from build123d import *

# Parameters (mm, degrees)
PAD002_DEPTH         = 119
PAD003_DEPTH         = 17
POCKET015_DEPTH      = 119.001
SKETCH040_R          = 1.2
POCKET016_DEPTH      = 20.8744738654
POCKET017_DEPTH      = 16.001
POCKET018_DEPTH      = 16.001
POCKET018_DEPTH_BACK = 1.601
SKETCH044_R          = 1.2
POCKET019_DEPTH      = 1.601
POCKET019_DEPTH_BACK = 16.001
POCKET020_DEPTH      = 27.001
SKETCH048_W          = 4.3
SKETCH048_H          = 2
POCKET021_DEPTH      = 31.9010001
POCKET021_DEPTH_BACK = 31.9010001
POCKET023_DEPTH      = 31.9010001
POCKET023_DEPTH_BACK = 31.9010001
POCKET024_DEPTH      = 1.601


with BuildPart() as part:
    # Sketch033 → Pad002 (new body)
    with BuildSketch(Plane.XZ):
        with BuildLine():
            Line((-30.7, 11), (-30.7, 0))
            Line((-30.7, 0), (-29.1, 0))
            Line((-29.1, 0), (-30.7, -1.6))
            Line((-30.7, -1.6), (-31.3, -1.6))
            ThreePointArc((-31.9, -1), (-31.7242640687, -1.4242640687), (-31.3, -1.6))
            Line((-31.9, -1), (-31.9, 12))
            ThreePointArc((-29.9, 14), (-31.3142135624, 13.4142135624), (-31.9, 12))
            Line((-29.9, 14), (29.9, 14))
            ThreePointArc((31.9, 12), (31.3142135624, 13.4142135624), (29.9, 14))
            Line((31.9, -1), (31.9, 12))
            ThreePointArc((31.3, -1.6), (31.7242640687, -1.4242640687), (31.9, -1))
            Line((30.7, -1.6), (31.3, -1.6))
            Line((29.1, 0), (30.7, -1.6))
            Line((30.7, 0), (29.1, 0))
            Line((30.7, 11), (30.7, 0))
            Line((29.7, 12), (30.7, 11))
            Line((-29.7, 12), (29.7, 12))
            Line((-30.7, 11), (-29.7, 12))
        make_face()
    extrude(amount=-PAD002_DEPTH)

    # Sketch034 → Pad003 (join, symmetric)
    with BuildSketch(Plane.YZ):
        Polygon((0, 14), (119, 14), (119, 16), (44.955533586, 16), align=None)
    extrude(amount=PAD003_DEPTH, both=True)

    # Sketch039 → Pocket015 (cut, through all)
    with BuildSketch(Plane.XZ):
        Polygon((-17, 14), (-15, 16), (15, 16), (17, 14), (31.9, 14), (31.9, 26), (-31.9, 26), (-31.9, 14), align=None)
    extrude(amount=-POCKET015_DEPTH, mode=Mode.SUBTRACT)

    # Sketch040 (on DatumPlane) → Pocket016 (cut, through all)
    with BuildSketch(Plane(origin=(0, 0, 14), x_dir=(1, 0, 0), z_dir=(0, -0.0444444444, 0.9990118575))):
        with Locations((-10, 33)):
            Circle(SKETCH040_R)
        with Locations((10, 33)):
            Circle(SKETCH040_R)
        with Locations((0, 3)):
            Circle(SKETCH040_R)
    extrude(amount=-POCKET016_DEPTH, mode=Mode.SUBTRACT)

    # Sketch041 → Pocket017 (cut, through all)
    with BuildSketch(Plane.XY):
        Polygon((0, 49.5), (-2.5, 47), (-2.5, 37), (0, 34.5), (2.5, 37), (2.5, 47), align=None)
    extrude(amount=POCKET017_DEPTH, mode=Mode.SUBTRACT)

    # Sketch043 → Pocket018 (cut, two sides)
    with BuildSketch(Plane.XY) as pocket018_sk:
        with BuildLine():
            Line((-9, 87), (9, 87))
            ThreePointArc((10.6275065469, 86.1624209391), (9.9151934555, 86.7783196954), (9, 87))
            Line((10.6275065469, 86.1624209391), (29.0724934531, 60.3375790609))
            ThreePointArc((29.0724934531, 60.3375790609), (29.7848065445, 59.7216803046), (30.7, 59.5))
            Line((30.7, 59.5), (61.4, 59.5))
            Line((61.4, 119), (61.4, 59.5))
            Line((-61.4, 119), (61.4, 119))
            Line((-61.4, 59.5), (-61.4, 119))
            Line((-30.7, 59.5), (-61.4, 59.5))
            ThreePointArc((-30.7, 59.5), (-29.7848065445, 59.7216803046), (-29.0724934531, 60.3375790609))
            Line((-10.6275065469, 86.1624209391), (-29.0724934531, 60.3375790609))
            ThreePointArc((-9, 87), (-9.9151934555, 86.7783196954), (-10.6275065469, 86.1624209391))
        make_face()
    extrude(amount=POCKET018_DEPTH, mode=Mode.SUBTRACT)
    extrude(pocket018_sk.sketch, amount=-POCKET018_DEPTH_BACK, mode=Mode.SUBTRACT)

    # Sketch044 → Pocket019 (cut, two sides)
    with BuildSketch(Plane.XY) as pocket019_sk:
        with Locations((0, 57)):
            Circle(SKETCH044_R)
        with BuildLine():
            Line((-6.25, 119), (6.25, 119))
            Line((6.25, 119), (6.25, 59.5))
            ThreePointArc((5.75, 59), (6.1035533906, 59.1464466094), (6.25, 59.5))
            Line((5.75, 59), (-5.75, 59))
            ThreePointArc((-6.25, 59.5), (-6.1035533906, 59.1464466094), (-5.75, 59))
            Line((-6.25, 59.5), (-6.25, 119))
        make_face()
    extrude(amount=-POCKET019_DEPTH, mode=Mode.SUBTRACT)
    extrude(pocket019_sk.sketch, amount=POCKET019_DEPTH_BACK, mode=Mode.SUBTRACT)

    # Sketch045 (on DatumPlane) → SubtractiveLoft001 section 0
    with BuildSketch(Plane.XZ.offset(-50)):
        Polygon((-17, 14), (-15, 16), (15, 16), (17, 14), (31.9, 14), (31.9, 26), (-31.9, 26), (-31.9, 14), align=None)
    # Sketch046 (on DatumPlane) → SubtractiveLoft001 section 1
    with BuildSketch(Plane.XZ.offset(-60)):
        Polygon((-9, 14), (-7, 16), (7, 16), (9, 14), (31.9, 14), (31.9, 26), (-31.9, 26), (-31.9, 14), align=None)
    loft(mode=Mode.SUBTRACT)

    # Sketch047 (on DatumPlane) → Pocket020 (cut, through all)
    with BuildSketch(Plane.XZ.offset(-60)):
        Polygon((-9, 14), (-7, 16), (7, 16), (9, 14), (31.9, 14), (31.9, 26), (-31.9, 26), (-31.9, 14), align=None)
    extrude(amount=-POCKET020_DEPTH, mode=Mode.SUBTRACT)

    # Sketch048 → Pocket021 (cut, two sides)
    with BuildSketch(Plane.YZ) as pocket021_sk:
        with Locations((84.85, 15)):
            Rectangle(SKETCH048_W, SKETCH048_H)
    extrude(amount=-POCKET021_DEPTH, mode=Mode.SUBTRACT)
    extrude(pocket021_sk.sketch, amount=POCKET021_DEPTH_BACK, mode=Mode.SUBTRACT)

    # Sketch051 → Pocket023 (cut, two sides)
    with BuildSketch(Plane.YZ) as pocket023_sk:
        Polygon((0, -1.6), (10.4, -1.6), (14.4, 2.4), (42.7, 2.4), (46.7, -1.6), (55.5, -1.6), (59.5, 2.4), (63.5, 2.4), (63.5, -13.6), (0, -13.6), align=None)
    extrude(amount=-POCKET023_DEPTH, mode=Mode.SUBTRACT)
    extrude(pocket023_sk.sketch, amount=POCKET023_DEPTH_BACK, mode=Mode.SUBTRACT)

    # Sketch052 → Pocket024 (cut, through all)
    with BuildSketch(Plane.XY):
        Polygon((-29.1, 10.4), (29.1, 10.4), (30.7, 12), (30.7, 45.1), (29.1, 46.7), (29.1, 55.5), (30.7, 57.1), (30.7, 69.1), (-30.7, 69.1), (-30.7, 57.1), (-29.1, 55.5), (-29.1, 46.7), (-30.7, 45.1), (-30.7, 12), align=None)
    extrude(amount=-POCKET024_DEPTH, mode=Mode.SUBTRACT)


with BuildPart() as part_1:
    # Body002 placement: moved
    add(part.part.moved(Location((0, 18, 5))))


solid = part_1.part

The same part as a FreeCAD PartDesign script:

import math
import FreeCAD as App
import Part
import Sketcher
Q = App.Units.Quantity

doc = App.newDocument("Part")
body = doc.addObject("PartDesign::Body", "Body")

# Sketch on XZ plane
sketch1 = body.newObject("Sketcher::SketchObject", "Sketch")
sketch1.AttachmentSupport = (doc.getObject("XZ_Plane"), [""])
sketch1.MapMode = "FlatFace"
sketch1.addGeometry([
    Part.LineSegment(App.Vector(-30.7, 0, 0), App.Vector(-30.7, 11, 0)),  # 0
    Part.LineSegment(App.Vector(-30.7, 11, 0), App.Vector(-29.7, 12, 0)),  # 1
    Part.LineSegment(App.Vector(-29.7, 12, 0), App.Vector(29.7, 12, 0)),  # 2
    Part.LineSegment(App.Vector(29.7, 12, 0), App.Vector(30.7, 11, 0)),  # 3
    Part.LineSegment(App.Vector(30.7, 11, 0), App.Vector(30.7, 0, 0)),  # 4
    Part.LineSegment(App.Vector(30.7, 0, 0), App.Vector(29.1, 0, 0)),  # 5
    Part.LineSegment(App.Vector(29.1, 0, 0), App.Vector(30.7, -1.6, 0)),  # 6
    Part.LineSegment(App.Vector(30.7, -1.6, 0), App.Vector(31.3, -1.6, 0)),  # 7
    Part.ArcOfCircle(Part.Circle(App.Vector(31.3, -1, 0), App.Vector(0, 0, 1), 0.6), math.radians(-90), math.radians(0)),  # 8
    Part.LineSegment(App.Vector(31.9, -1, 0), App.Vector(31.9, 12, 0)),  # 9
    Part.ArcOfCircle(Part.Circle(App.Vector(29.9, 12, 0), App.Vector(0, 0, 1), 2), math.radians(0), math.radians(90)),  # 10
    Part.LineSegment(App.Vector(29.9, 14, 0), App.Vector(-29.9, 14, 0)),  # 11
    Part.ArcOfCircle(Part.Circle(App.Vector(-29.9, 12, 0), App.Vector(0, 0, 1), 2), math.radians(90), math.radians(180)),  # 12
    Part.LineSegment(App.Vector(-31.9, 12, 0), App.Vector(-31.9, -1, 0)),  # 13
    Part.ArcOfCircle(Part.Circle(App.Vector(-31.3, -1, 0), App.Vector(0, 0, 1), 0.6), math.radians(180), math.radians(270)),  # 14
    Part.LineSegment(App.Vector(-31.3, -1.6, 0), App.Vector(-30.7, -1.6, 0)),  # 15
    Part.LineSegment(App.Vector(-30.7, -1.6, 0), App.Vector(-29.1, 0, 0)),  # 16
    Part.LineSegment(App.Vector(-29.1, 0, 0), App.Vector(-30.7, 0, 0)),  # 17
], False)
sketch1.addConstraint([
    Sketcher.Constraint("Coincident", 0, 2, 1, 1),
    Sketcher.Constraint("Coincident", 1, 2, 2, 1),
    Sketcher.Constraint("Coincident", 2, 2, 3, 1),
    Sketcher.Constraint("Coincident", 3, 2, 4, 1),
    Sketcher.Constraint("Coincident", 4, 2, 5, 1),
    Sketcher.Constraint("Coincident", 5, 2, 6, 1),
    Sketcher.Constraint("Coincident", 6, 2, 7, 1),
    Sketcher.Constraint("Tangent", 7, 2, 8, 1),
    Sketcher.Constraint("Tangent", 8, 2, 9, 1),
    Sketcher.Constraint("Tangent", 9, 2, 10, 1),
    Sketcher.Constraint("Tangent", 10, 2, 11, 1),
    Sketcher.Constraint("Tangent", 11, 2, 12, 1),
    Sketcher.Constraint("Tangent", 12, 2, 13, 1),
    Sketcher.Constraint("Tangent", 13, 2, 14, 1),
    Sketcher.Constraint("Tangent", 14, 2, 15, 1),
    Sketcher.Constraint("Coincident", 15, 2, 16, 1),
    Sketcher.Constraint("Coincident", 16, 2, 17, 1),
    Sketcher.Constraint("Coincident", 17, 2, 0, 1),
    Sketcher.Constraint("Vertical", 0),
    Sketcher.Constraint("Horizontal", 2),
    Sketcher.Constraint("Vertical", 4),
    Sketcher.Constraint("Horizontal", 5),
    Sketcher.Constraint("Horizontal", 7),
    Sketcher.Constraint("Vertical", 9),
    Sketcher.Constraint("Horizontal", 11),
    Sketcher.Constraint("Vertical", 13),
    Sketcher.Constraint("Horizontal", 15),
    Sketcher.Constraint("Horizontal", 17),
    Sketcher.Constraint("Equal", 10, 12),
    Sketcher.Constraint("Equal", 8, 14),
    Sketcher.Constraint("Symmetric", 5, 2, 16, 2, -1, 1),
    Sketcher.Constraint("Symmetric", 8, 3, 14, 3, -2),
    Sketcher.Constraint("Symmetric", 0, 2, 3, 2, -2),
    Sketcher.Constraint("PointOnObject", 4, 2, -1),
    Sketcher.Constraint("Perpendicular", 1, 3),
    Sketcher.Constraint("Parallel", 3, 6),
    Sketcher.Constraint("Perpendicular", 6, 16),
    Sketcher.Constraint("Horizontal", 12, 3, 1, 2),
    Sketcher.Constraint("Vertical", 4, 2, 6, 2),
    Sketcher.Constraint("Vertical", 0, 2, 15, 2),
    Sketcher.Constraint("Radius", 10, Q("2 mm")),
    Sketcher.Constraint("Radius", 8, Q("0.6 mm")),
    Sketcher.Constraint("DistanceY", 0, 1, 0, 2, Q("11 mm")),
    Sketcher.Constraint("DistanceY", 9, 1, 9, 2, Q("13 mm")),
    Sketcher.Constraint("DistanceX", 2, 1, 2, 2, Q("59.4 mm")),
    Sketcher.Constraint("DistanceX", 5, 2, 5, 1, Q("1.6 mm")),
    Sketcher.Constraint("DistanceX", 7, 1, 7, 2, Q("0.6 mm")),
])
pad1 = body.newObject("PartDesign::Pad", "Pad")
pad1.Profile = sketch1
pad1.Length = 119
pad1.Reversed = True

# Sketch on YZ plane
sketch2 = body.newObject("Sketcher::SketchObject", "Sketch001")
sketch2.AttachmentSupport = (doc.getObject("YZ_Plane"), [""])
sketch2.MapMode = "FlatFace"
sketch2.addGeometry([
    Part.LineSegment(App.Vector(0, 14, 0), App.Vector(119, 14, 0)),
    Part.LineSegment(App.Vector(119, 14, 0), App.Vector(119, 16, 0)),
    Part.LineSegment(App.Vector(119, 16, 0), App.Vector(45, 16, 0)),
    Part.LineSegment(App.Vector(45, 16, 0), App.Vector(0, 14, 0)),
], False)
sketch2.addConstraint([
    Sketcher.Constraint("Coincident", 0, 2, 1, 1),
    Sketcher.Constraint("Coincident", 1, 2, 2, 1),
    Sketcher.Constraint("Coincident", 2, 2, 3, 1),
    Sketcher.Constraint("Coincident", 3, 2, 0, 1),
    Sketcher.Constraint("Horizontal", 0),
    Sketcher.Constraint("Vertical", 1),
    Sketcher.Constraint("Horizontal", 2),
    Sketcher.Constraint("PointOnObject", 3, 2, -2),
    Sketcher.Constraint("DistanceX", 0, 1, 0, 2, Q("119 mm")),
    Sketcher.Constraint("DistanceY", 1, 1, 1, 2, Q("2 mm")),
    Sketcher.Constraint("Distance", 3, Q("45 mm")),
    Sketcher.Constraint("DistanceY", -1, 1, 0, 2, Q("14 mm")),
])
pad2 = body.newObject("PartDesign::Pad", "Pad001")
pad2.Profile = sketch2
pad2.Length = 34
pad2.Midplane = True

# Sketch on XZ plane
sketch3 = body.newObject("Sketcher::SketchObject", "Sketch002")
sketch3.AttachmentSupport = (doc.getObject("XZ_Plane"), [""])
sketch3.MapMode = "FlatFace"
sketch3.addGeometry([
    Part.LineSegment(App.Vector(-17, 14, 0), App.Vector(-15, 16, 0)),  # 0
    Part.LineSegment(App.Vector(-15, 16, 0), App.Vector(15, 16, 0)),  # 1
    Part.LineSegment(App.Vector(15, 16, 0), App.Vector(17, 14, 0)),  # 2
    Part.LineSegment(App.Vector(17, 14, 0), App.Vector(31.9, 14, 0)),  # 3
    Part.LineSegment(App.Vector(31.9, 14, 0), App.Vector(31.9, 26, 0)),  # 4
    Part.LineSegment(App.Vector(31.9, 26, 0), App.Vector(-31.9, 26, 0)),  # 5
    Part.LineSegment(App.Vector(-31.9, 26, 0), App.Vector(-31.9, 14, 0)),  # 6
    Part.LineSegment(App.Vector(-31.9, 14, 0), App.Vector(-17, 14, 0)),  # 7
], False)
sketch3.addConstraint([
    Sketcher.Constraint("Coincident", 0, 2, 1, 1),
    Sketcher.Constraint("Coincident", 1, 2, 2, 1),
    Sketcher.Constraint("Coincident", 2, 2, 3, 1),
    Sketcher.Constraint("Coincident", 3, 2, 4, 1),
    Sketcher.Constraint("Coincident", 4, 2, 5, 1),
    Sketcher.Constraint("Coincident", 5, 2, 6, 1),
    Sketcher.Constraint("Coincident", 6, 2, 7, 1),
    Sketcher.Constraint("Coincident", 7, 2, 0, 1),
    Sketcher.Constraint("Horizontal", 1),
    Sketcher.Constraint("Horizontal", 3),
    Sketcher.Constraint("Vertical", 4),
    Sketcher.Constraint("Horizontal", 5),
    Sketcher.Constraint("Vertical", 6),
    Sketcher.Constraint("Horizontal", 7),
    Sketcher.Constraint("Symmetric", 3, 2, 6, 2, -2),
    Sketcher.Constraint("Perpendicular", 0, 2),
    Sketcher.Constraint("Equal", 3, 7),
    Sketcher.Constraint("Equal", 0, 2),
    Sketcher.Constraint("DistanceX", 1, 1, 1, 2, Q("30 mm")),
    Sketcher.Constraint("DistanceY", 4, 1, 4, 2, Q("12 mm")),
    Sketcher.Constraint("DistanceX", 3, 1, 3, 2, Q("14.9 mm")),
    Sketcher.Constraint("DistanceX", 5, 2, 5, 1, Q("63.8 mm")),
    Sketcher.Constraint("DistanceY", -1, 1, 0, 2, Q("16 mm")),
])
pocket1 = body.newObject("PartDesign::Pocket", "Pocket")
pocket1.Profile = sketch3
pocket1.Type = "ThroughAll"

# Sketch on an angled plane
sketch4 = body.newObject("Sketcher::SketchObject", "Sketch003")
sketch4.Placement = App.Placement(App.Vector(0, 0, 14), App.Rotation(App.Vector(1, 0, 0), App.Vector(0, 0.999011857, 0.044444444), App.Vector(0, -0.044444444, 0.999011857), "ZXY"))
sketch4.addGeometry([
    Part.Circle(App.Vector(-10, 33, 0), App.Vector(0, 0, 1), 1.2),
    Part.Circle(App.Vector(10, 33, 0), App.Vector(0, 0, 1), 1.2),
    Part.Circle(App.Vector(0, 3, 0), App.Vector(0, 0, 1), 1.2),
], False)
sketch4.addConstraint([
    Sketcher.Constraint("Equal", 0, 1),
    Sketcher.Constraint("Equal", 1, 2),
    Sketcher.Constraint("Symmetric", 0, 3, 1, 3, -2),
    Sketcher.Constraint("PointOnObject", 2, 3, -2),
    Sketcher.Constraint("Diameter", 0, Q("2.4 mm")),
    Sketcher.Constraint("DistanceX", 0, 3, -1, 1, Q("10 mm")),
    Sketcher.Constraint("DistanceY", -1, 1, 0, 3, Q("33 mm")),
    Sketcher.Constraint("DistanceY", -1, 1, 2, 3, Q("3 mm")),
])
pocket2 = body.newObject("PartDesign::Pocket", "Pocket001")
pocket2.Profile = sketch4
pocket2.Type = "ThroughAll"

# Sketch on XY plane
sketch5 = body.newObject("Sketcher::SketchObject", "Sketch004")
sketch5.AttachmentSupport = (doc.getObject("XY_Plane"), [""])
sketch5.MapMode = "FlatFace"
sketch5.addGeometry([
    Part.LineSegment(App.Vector(0, 49.5, 0), App.Vector(-2.5, 47, 0)),  # 0
    Part.LineSegment(App.Vector(-2.5, 47, 0), App.Vector(-2.5, 37, 0)),  # 1
    Part.LineSegment(App.Vector(-2.5, 37, 0), App.Vector(0, 34.5, 0)),  # 2
    Part.LineSegment(App.Vector(0, 34.5, 0), App.Vector(2.5, 37, 0)),  # 3
    Part.LineSegment(App.Vector(2.5, 37, 0), App.Vector(2.5, 47, 0)),  # 4
    Part.LineSegment(App.Vector(2.5, 47, 0), App.Vector(0, 49.5, 0)),  # 5
], False)
sketch5.addConstraint([
    Sketcher.Constraint("Coincident", 0, 2, 1, 1),
    Sketcher.Constraint("Coincident", 1, 2, 2, 1),
    Sketcher.Constraint("Coincident", 2, 2, 3, 1),
    Sketcher.Constraint("Coincident", 3, 2, 4, 1),
    Sketcher.Constraint("Coincident", 4, 2, 5, 1),
    Sketcher.Constraint("Coincident", 5, 2, 0, 1),
    Sketcher.Constraint("Vertical", 1),
    Sketcher.Constraint("Vertical", 4),
    Sketcher.Constraint("Symmetric", 1, 2, 3, 2, -2),
    Sketcher.Constraint("PointOnObject", 2, 2, -2),
    Sketcher.Constraint("PointOnObject", 5, 2, -2),
    Sketcher.Constraint("Perpendicular", 0, 2),
    Sketcher.Constraint("Perpendicular", 2, 3),
    Sketcher.Constraint("Perpendicular", 3, 5),
    Sketcher.Constraint("DistanceY", 1, 2, 1, 1, Q("10 mm")),
    Sketcher.Constraint("DistanceY", -1, 1, 0, 2, Q("47 mm")),
    Sketcher.Constraint("DistanceX", 1, 2, 3, 2, Q("5 mm")),
])
pocket3 = body.newObject("PartDesign::Pocket", "Pocket002")
pocket3.Profile = sketch5
pocket3.Type = "ThroughAll"
pocket3.Reversed = True

# Sketch on XY plane
sketch6 = body.newObject("Sketcher::SketchObject", "Sketch005")
sketch6.AttachmentSupport = (doc.getObject("XY_Plane"), [""])
sketch6.MapMode = "FlatFace"
sketch6.addGeometry([
    Part.LineSegment(App.Vector(-9, 87, 0), App.Vector(9, 87, 0)),  # 0
    Part.ArcOfCircle(Part.Circle(App.Vector(9, 85, 0), App.Vector(0, 0, 1), 2), math.radians(36), math.radians(90)),  # 1
    Part.LineSegment(App.Vector(10.6, 86.2, 0), App.Vector(29.1, 60.3, 0)),  # 2
    Part.ArcOfCircle(Part.Circle(App.Vector(30.7, 61.5, 0), App.Vector(0, 0, 1), 2), math.radians(-144), math.radians(-90)),  # 3
    Part.LineSegment(App.Vector(30.7, 59.5, 0), App.Vector(61.4, 59.5, 0)),  # 4
    Part.LineSegment(App.Vector(61.4, 59.5, 0), App.Vector(61.4, 119, 0)),  # 5
    Part.LineSegment(App.Vector(61.4, 119, 0), App.Vector(-61.4, 119, 0)),  # 6
    Part.LineSegment(App.Vector(-61.4, 119, 0), App.Vector(-61.4, 59.5, 0)),  # 7
    Part.LineSegment(App.Vector(-61.4, 59.5, 0), App.Vector(-30.7, 59.5, 0)),  # 8
    Part.ArcOfCircle(Part.Circle(App.Vector(-30.7, 61.5, 0), App.Vector(0, 0, 1), 2), math.radians(-90), math.radians(-36)),  # 9
    Part.LineSegment(App.Vector(-29.1, 60.3, 0), App.Vector(-10.6, 86.2, 0)),  # 10
    Part.ArcOfCircle(Part.Circle(App.Vector(-9, 85, 0), App.Vector(0, 0, 1), 2), math.radians(90), math.radians(144)),  # 11
], False)
sketch6.addConstraint([
    Sketcher.Constraint("Tangent", 0, 2, 1, 2),
    Sketcher.Constraint("Tangent", 1, 1, 2, 1),
    Sketcher.Constraint("Tangent", 2, 2, 3, 1),
    Sketcher.Constraint("Tangent", 3, 2, 4, 1),
    Sketcher.Constraint("Coincident", 4, 2, 5, 1),
    Sketcher.Constraint("Coincident", 5, 2, 6, 1),
    Sketcher.Constraint("Coincident", 6, 2, 7, 1),
    Sketcher.Constraint("Coincident", 7, 2, 8, 1),
    Sketcher.Constraint("Tangent", 8, 2, 9, 1),
    Sketcher.Constraint("Tangent", 9, 2, 10, 1),
    Sketcher.Constraint("Tangent", 10, 2, 11, 2),
    Sketcher.Constraint("Tangent", 11, 1, 0, 1),
    Sketcher.Constraint("Horizontal", 0),
    Sketcher.Constraint("Horizontal", 4),
    Sketcher.Constraint("Vertical", 5),
    Sketcher.Constraint("Horizontal", 6),
    Sketcher.Constraint("Vertical", 7),
    Sketcher.Constraint("Horizontal", 8),
    Sketcher.Constraint("Equal", 1, 3),
    Sketcher.Constraint("Equal", 3, 9),
    Sketcher.Constraint("Equal", 9, 11),
    Sketcher.Constraint("Symmetric", 3, 3, 9, 3, -2),
    Sketcher.Constraint("Horizontal", 2, 2, 9, 2),
    Sketcher.Constraint("Equal", 4, 8),
    Sketcher.Constraint("Radius", 1, Q("2 mm")),
    Sketcher.Constraint("DistanceX", 0, 1, 0, 2, Q("18 mm")),
    Sketcher.Constraint("DistanceX", 4, 1, 4, 2, Q("30.7 mm")),
    Sketcher.Constraint("DistanceX", 6, 2, 6, 1, Q("122.8 mm")),
    Sketcher.Constraint("DistanceY", 5, 1, 5, 2, Q("59.5 mm")),
    Sketcher.Constraint("DistanceY", -1, 1, 1, 3, Q("85 mm")),
    Sketcher.Constraint("DistanceY", -1, 1, 5, 2, Q("119 mm")),
])
pocket4 = body.newObject("PartDesign::Pocket", "Pocket003")
pocket4.Profile = sketch6
pocket4.Type = "ThroughAll"
pocket4.Midplane = True

# Sketch on XY plane
sketch7 = body.newObject("Sketcher::SketchObject", "Sketch006")
sketch7.AttachmentSupport = (doc.getObject("XY_Plane"), [""])
sketch7.MapMode = "FlatFace"
sketch7.addGeometry([
    Part.Circle(App.Vector(0, 57, 0), App.Vector(0, 0, 1), 1.2),  # 0
    Part.LineSegment(App.Vector(6.2, 119, 0), App.Vector(-6.2, 119, 0)),  # 1
    Part.LineSegment(App.Vector(-6.2, 119, 0), App.Vector(-6.2, 59.5, 0)),  # 2
    Part.ArcOfCircle(Part.Circle(App.Vector(-5.8, 59.5, 0), App.Vector(0, 0, 1), 0.5), math.radians(180), math.radians(270)),  # 3
    Part.LineSegment(App.Vector(-5.8, 59, 0), App.Vector(5.8, 59, 0)),  # 4
    Part.ArcOfCircle(Part.Circle(App.Vector(5.8, 59.5, 0), App.Vector(0, 0, 1), 0.5), math.radians(-90), math.radians(0)),  # 5
    Part.LineSegment(App.Vector(6.2, 59.5, 0), App.Vector(6.2, 119, 0)),  # 6
], False)
sketch7.addConstraint([
    Sketcher.Constraint("Coincident", 1, 2, 2, 1),
    Sketcher.Constraint("Tangent", 2, 2, 3, 1),
    Sketcher.Constraint("Tangent", 3, 2, 4, 1),
    Sketcher.Constraint("Tangent", 4, 2, 5, 1),
    Sketcher.Constraint("Tangent", 5, 2, 6, 1),
    Sketcher.Constraint("Coincident", 6, 2, 1, 1),
    Sketcher.Constraint("Horizontal", 1),
    Sketcher.Constraint("Vertical", 2),
    Sketcher.Constraint("Horizontal", 4),
    Sketcher.Constraint("Vertical", 6),
    Sketcher.Constraint("Equal", 3, 5),
    Sketcher.Constraint("PointOnObject", 0, 3, -2),
    Sketcher.Constraint("Diameter", 0, Q("2.4 mm")),
    Sketcher.Constraint("Radius", 3, Q("0.5 mm")),
    Sketcher.Constraint("DistanceX", 1, 2, 1, 1, Q("12.5 mm")),
    Sketcher.Constraint("DistanceY", 2, 2, 2, 1, Q("59.5 mm")),
    Sketcher.Constraint("DistanceY", -1, 1, 0, 3, Q("57 mm")),
    Sketcher.Constraint("DistanceY", -1, 1, 1, 2, Q("119 mm")),
    Sketcher.Constraint("DistanceX", 3, 3, -1, 1, Q("5.75 mm")),
])
pocket5 = body.newObject("PartDesign::Pocket", "Pocket004")
pocket5.Profile = sketch7
pocket5.Type = "ThroughAll"
pocket5.Midplane = True

# Sketch on XZ plane
sketch8 = body.newObject("Sketcher::SketchObject", "Sketch007")
sketch8.AttachmentSupport = (doc.getObject("XZ_Plane"), [""])
sketch8.MapMode = "FlatFace"
sketch8.AttachmentOffset = App.Placement(App.Vector(0, 0, -50), App.Rotation())
sketch8.addGeometry([
    Part.LineSegment(App.Vector(-17, 14, 0), App.Vector(-15, 16, 0)),  # 0
    Part.LineSegment(App.Vector(-15, 16, 0), App.Vector(15, 16, 0)),  # 1
    Part.LineSegment(App.Vector(15, 16, 0), App.Vector(17, 14, 0)),  # 2
    Part.LineSegment(App.Vector(17, 14, 0), App.Vector(31.9, 14, 0)),  # 3
    Part.LineSegment(App.Vector(31.9, 14, 0), App.Vector(31.9, 26, 0)),  # 4
    Part.LineSegment(App.Vector(31.9, 26, 0), App.Vector(-31.9, 26, 0)),  # 5
    Part.LineSegment(App.Vector(-31.9, 26, 0), App.Vector(-31.9, 14, 0)),  # 6
    Part.LineSegment(App.Vector(-31.9, 14, 0), App.Vector(-17, 14, 0)),  # 7
], False)
sketch8.addConstraint([
    Sketcher.Constraint("Coincident", 0, 2, 1, 1),
    Sketcher.Constraint("Coincident", 1, 2, 2, 1),
    Sketcher.Constraint("Coincident", 2, 2, 3, 1),
    Sketcher.Constraint("Coincident", 3, 2, 4, 1),
    Sketcher.Constraint("Coincident", 4, 2, 5, 1),
    Sketcher.Constraint("Coincident", 5, 2, 6, 1),
    Sketcher.Constraint("Coincident", 6, 2, 7, 1),
    Sketcher.Constraint("Coincident", 7, 2, 0, 1),
    Sketcher.Constraint("Horizontal", 1),
    Sketcher.Constraint("Horizontal", 3),
    Sketcher.Constraint("Vertical", 4),
    Sketcher.Constraint("Horizontal", 5),
    Sketcher.Constraint("Vertical", 6),
    Sketcher.Constraint("Horizontal", 7),
    Sketcher.Constraint("Symmetric", 3, 2, 6, 2, -2),
    Sketcher.Constraint("Perpendicular", 0, 2),
    Sketcher.Constraint("Equal", 3, 7),
    Sketcher.Constraint("Equal", 0, 2),
    Sketcher.Constraint("DistanceX", 1, 1, 1, 2, Q("30 mm")),
    Sketcher.Constraint("DistanceY", 4, 1, 4, 2, Q("12 mm")),
    Sketcher.Constraint("DistanceX", 3, 1, 3, 2, Q("14.9 mm")),
    Sketcher.Constraint("DistanceX", 5, 2, 5, 1, Q("63.8 mm")),
    Sketcher.Constraint("DistanceY", -1, 1, 0, 2, Q("16 mm")),
])

# Sketch on XZ plane
sketch9 = body.newObject("Sketcher::SketchObject", "Sketch008")
sketch9.AttachmentSupport = (doc.getObject("XZ_Plane"), [""])
sketch9.MapMode = "FlatFace"
sketch9.AttachmentOffset = App.Placement(App.Vector(0, 0, -60), App.Rotation())
sketch9.addGeometry([
    Part.LineSegment(App.Vector(-9, 14, 0), App.Vector(-7, 16, 0)),  # 0
    Part.LineSegment(App.Vector(-7, 16, 0), App.Vector(7, 16, 0)),  # 1
    Part.LineSegment(App.Vector(7, 16, 0), App.Vector(9, 14, 0)),  # 2
    Part.LineSegment(App.Vector(9, 14, 0), App.Vector(31.9, 14, 0)),  # 3
    Part.LineSegment(App.Vector(31.9, 14, 0), App.Vector(31.9, 26, 0)),  # 4
    Part.LineSegment(App.Vector(31.9, 26, 0), App.Vector(-31.9, 26, 0)),  # 5
    Part.LineSegment(App.Vector(-31.9, 26, 0), App.Vector(-31.9, 14, 0)),  # 6
    Part.LineSegment(App.Vector(-31.9, 14, 0), App.Vector(-9, 14, 0)),  # 7
], False)
sketch9.addConstraint([
    Sketcher.Constraint("Coincident", 0, 2, 1, 1),
    Sketcher.Constraint("Coincident", 1, 2, 2, 1),
    Sketcher.Constraint("Coincident", 2, 2, 3, 1),
    Sketcher.Constraint("Coincident", 3, 2, 4, 1),
    Sketcher.Constraint("Coincident", 4, 2, 5, 1),
    Sketcher.Constraint("Coincident", 5, 2, 6, 1),
    Sketcher.Constraint("Coincident", 6, 2, 7, 1),
    Sketcher.Constraint("Coincident", 7, 2, 0, 1),
    Sketcher.Constraint("Horizontal", 1),
    Sketcher.Constraint("Horizontal", 3),
    Sketcher.Constraint("Vertical", 4),
    Sketcher.Constraint("Horizontal", 5),
    Sketcher.Constraint("Vertical", 6),
    Sketcher.Constraint("Horizontal", 7),
    Sketcher.Constraint("Symmetric", 3, 2, 6, 2, -2),
    Sketcher.Constraint("Perpendicular", 0, 2),
    Sketcher.Constraint("Equal", 3, 7),
    Sketcher.Constraint("Equal", 0, 2),
    Sketcher.Constraint("DistanceX", 1, 1, 1, 2, Q("14 mm")),
    Sketcher.Constraint("DistanceY", 4, 1, 4, 2, Q("12 mm")),
    Sketcher.Constraint("DistanceX", 3, 1, 3, 2, Q("22.9 mm")),
    Sketcher.Constraint("DistanceX", 5, 2, 5, 1, Q("63.8 mm")),
    Sketcher.Constraint("DistanceY", -1, 1, 0, 2, Q("16 mm")),
])

subtractiveloft = body.newObject("PartDesign::SubtractiveLoft", "SubtractiveLoft")
subtractiveloft.Profile = sketch8
subtractiveloft.Sections = [sketch9]

# Sketch on XZ plane
sketch10 = body.newObject("Sketcher::SketchObject", "Sketch009")
sketch10.AttachmentSupport = (doc.getObject("XZ_Plane"), [""])
sketch10.MapMode = "FlatFace"
sketch10.AttachmentOffset = App.Placement(App.Vector(0, 0, -60), App.Rotation())
sketch10.addGeometry([
    Part.LineSegment(App.Vector(-9, 14, 0), App.Vector(-7, 16, 0)),  # 0
    Part.LineSegment(App.Vector(-7, 16, 0), App.Vector(7, 16, 0)),  # 1
    Part.LineSegment(App.Vector(7, 16, 0), App.Vector(9, 14, 0)),  # 2
    Part.LineSegment(App.Vector(9, 14, 0), App.Vector(31.9, 14, 0)),  # 3
    Part.LineSegment(App.Vector(31.9, 14, 0), App.Vector(31.9, 26, 0)),  # 4
    Part.LineSegment(App.Vector(31.9, 26, 0), App.Vector(-31.9, 26, 0)),  # 5
    Part.LineSegment(App.Vector(-31.9, 26, 0), App.Vector(-31.9, 14, 0)),  # 6
    Part.LineSegment(App.Vector(-31.9, 14, 0), App.Vector(-9, 14, 0)),  # 7
], False)
sketch10.addConstraint([
    Sketcher.Constraint("Coincident", 0, 2, 1, 1),
    Sketcher.Constraint("Coincident", 1, 2, 2, 1),
    Sketcher.Constraint("Coincident", 2, 2, 3, 1),
    Sketcher.Constraint("Coincident", 3, 2, 4, 1),
    Sketcher.Constraint("Coincident", 4, 2, 5, 1),
    Sketcher.Constraint("Coincident", 5, 2, 6, 1),
    Sketcher.Constraint("Coincident", 6, 2, 7, 1),
    Sketcher.Constraint("Coincident", 7, 2, 0, 1),
    Sketcher.Constraint("Horizontal", 1),
    Sketcher.Constraint("Horizontal", 3),
    Sketcher.Constraint("Vertical", 4),
    Sketcher.Constraint("Horizontal", 5),
    Sketcher.Constraint("Vertical", 6),
    Sketcher.Constraint("Horizontal", 7),
    Sketcher.Constraint("Symmetric", 3, 2, 6, 2, -2),
    Sketcher.Constraint("Perpendicular", 0, 2),
    Sketcher.Constraint("Equal", 3, 7),
    Sketcher.Constraint("Equal", 0, 2),
    Sketcher.Constraint("DistanceX", 1, 1, 1, 2, Q("14 mm")),
    Sketcher.Constraint("DistanceY", 4, 1, 4, 2, Q("12 mm")),
    Sketcher.Constraint("DistanceX", 3, 1, 3, 2, Q("22.9 mm")),
    Sketcher.Constraint("DistanceX", 5, 2, 5, 1, Q("63.8 mm")),
    Sketcher.Constraint("DistanceY", -1, 1, 0, 2, Q("16 mm")),
])
pocket6 = body.newObject("PartDesign::Pocket", "Pocket005")
pocket6.Profile = sketch10
pocket6.Type = "ThroughAll"

# Sketch on YZ plane
sketch11 = body.newObject("Sketcher::SketchObject", "Sketch010")
sketch11.AttachmentSupport = (doc.getObject("YZ_Plane"), [""])
sketch11.MapMode = "FlatFace"
sketch11.addGeometry([
    Part.LineSegment(App.Vector(82.7, 16, 0), App.Vector(82.7, 14, 0)),
    Part.LineSegment(App.Vector(82.7, 14, 0), App.Vector(87, 14, 0)),
    Part.LineSegment(App.Vector(87, 14, 0), App.Vector(87, 16, 0)),
    Part.LineSegment(App.Vector(87, 16, 0), App.Vector(82.7, 16, 0)),
], False)
sketch11.addConstraint([
    Sketcher.Constraint("Coincident", 0, 2, 1, 1),
    Sketcher.Constraint("Coincident", 1, 2, 2, 1),
    Sketcher.Constraint("Coincident", 2, 2, 3, 1),
    Sketcher.Constraint("Coincident", 3, 2, 0, 1),
    Sketcher.Constraint("Vertical", 0),
    Sketcher.Constraint("Horizontal", 1),
    Sketcher.Constraint("Vertical", 2),
    Sketcher.Constraint("Horizontal", 3),
    Sketcher.Constraint("DistanceY", 0, 2, 0, 1, Q("2 mm")),
    Sketcher.Constraint("DistanceX", 1, 1, 1, 2, Q("4.3 mm")),
    Sketcher.Constraint("DistanceY", -1, 1, 0, 2, Q("14 mm")),
    Sketcher.Constraint("DistanceX", -1, 1, 1, 2, Q("87 mm")),
])
pocket7 = body.newObject("PartDesign::Pocket", "Pocket006")
pocket7.Profile = sketch11
pocket7.Type = "ThroughAll"
pocket7.Midplane = True

# Sketch on YZ plane
sketch12 = body.newObject("Sketcher::SketchObject", "Sketch011")
sketch12.AttachmentSupport = (doc.getObject("YZ_Plane"), [""])
sketch12.MapMode = "FlatFace"
sketch12.addGeometry([
    Part.LineSegment(App.Vector(10.4, -1.6, 0), App.Vector(0, -1.6, 0)),  # 0
    Part.LineSegment(App.Vector(0, -1.6, 0), App.Vector(0, -13.6, 0)),  # 1
    Part.LineSegment(App.Vector(0, -13.6, 0), App.Vector(63.5, -13.6, 0)),  # 2
    Part.LineSegment(App.Vector(63.5, -13.6, 0), App.Vector(63.5, 2.4, 0)),  # 3
    Part.LineSegment(App.Vector(63.5, 2.4, 0), App.Vector(59.5, 2.4, 0)),  # 4
    Part.LineSegment(App.Vector(59.5, 2.4, 0), App.Vector(55.5, -1.6, 0)),  # 5
    Part.LineSegment(App.Vector(55.5, -1.6, 0), App.Vector(46.7, -1.6, 0)),  # 6
    Part.LineSegment(App.Vector(46.7, -1.6, 0), App.Vector(42.7, 2.4, 0)),  # 7
    Part.LineSegment(App.Vector(42.7, 2.4, 0), App.Vector(14.4, 2.4, 0)),  # 8
    Part.LineSegment(App.Vector(14.4, 2.4, 0), App.Vector(10.4, -1.6, 0)),  # 9
], False)
sketch12.addConstraint([
    Sketcher.Constraint("Coincident", 0, 2, 1, 1),
    Sketcher.Constraint("Coincident", 1, 2, 2, 1),
    Sketcher.Constraint("Coincident", 2, 2, 3, 1),
    Sketcher.Constraint("Coincident", 3, 2, 4, 1),
    Sketcher.Constraint("Coincident", 4, 2, 5, 1),
    Sketcher.Constraint("Coincident", 5, 2, 6, 1),
    Sketcher.Constraint("Coincident", 6, 2, 7, 1),
    Sketcher.Constraint("Coincident", 7, 2, 8, 1),
    Sketcher.Constraint("Coincident", 8, 2, 9, 1),
    Sketcher.Constraint("Coincident", 9, 2, 0, 1),
    Sketcher.Constraint("Horizontal", 0),
    Sketcher.Constraint("Vertical", 1),
    Sketcher.Constraint("Horizontal", 2),
    Sketcher.Constraint("Vertical", 3),
    Sketcher.Constraint("Horizontal", 4),
    Sketcher.Constraint("Horizontal", 6),
    Sketcher.Constraint("Horizontal", 8),
    Sketcher.Constraint("PointOnObject", 0, 2, -2),
    Sketcher.Constraint("Perpendicular", 5, 7),
    Sketcher.Constraint("Perpendicular", 7, 9),
    Sketcher.Constraint("Horizontal", 0, 2, 5, 2),
    Sketcher.Constraint("Horizontal", 4, 2, 7, 2),
    Sketcher.Constraint("Equal", 5, 7),
    Sketcher.Constraint("DistanceX", 4, 2, 4, 1, Q("4 mm")),
    Sketcher.Constraint("DistanceY", 1, 2, 1, 1, Q("12 mm")),
    Sketcher.Constraint("DistanceY", 3, 1, 3, 2, Q("16 mm")),
    Sketcher.Constraint("DistanceX", 0, 2, 0, 1, Q("10.4 mm")),
    Sketcher.Constraint("DistanceX", 2, 1, 2, 2, Q("63.5 mm")),
    Sketcher.Constraint("DistanceX", 6, 2, 6, 1, Q("8.8 mm")),
    Sketcher.Constraint("DistanceY", 0, 2, -1, 1, Q("1.6 mm")),
])
pocket8 = body.newObject("PartDesign::Pocket", "Pocket007")
pocket8.Profile = sketch12
pocket8.Type = "ThroughAll"
pocket8.Midplane = True

# Sketch on XY plane
sketch13 = body.newObject("Sketcher::SketchObject", "Sketch012")
sketch13.AttachmentSupport = (doc.getObject("XY_Plane"), [""])
sketch13.MapMode = "FlatFace"
sketch13.addGeometry([
    Part.LineSegment(App.Vector(-29.1, 10.4, 0), App.Vector(29.1, 10.4, 0)),  # 0
    Part.LineSegment(App.Vector(29.1, 10.4, 0), App.Vector(30.7, 12, 0)),  # 1
    Part.LineSegment(App.Vector(30.7, 12, 0), App.Vector(30.7, 45.1, 0)),  # 2
    Part.LineSegment(App.Vector(30.7, 45.1, 0), App.Vector(29.1, 46.7, 0)),  # 3
    Part.LineSegment(App.Vector(29.1, 46.7, 0), App.Vector(29.1, 55.5, 0)),  # 4
    Part.LineSegment(App.Vector(29.1, 55.5, 0), App.Vector(30.7, 57.1, 0)),  # 5
    Part.LineSegment(App.Vector(30.7, 57.1, 0), App.Vector(30.7, 69.1, 0)),  # 6
    Part.LineSegment(App.Vector(30.7, 69.1, 0), App.Vector(-30.7, 69.1, 0)),  # 7
    Part.LineSegment(App.Vector(-30.7, 69.1, 0), App.Vector(-30.7, 57.1, 0)),  # 8
    Part.LineSegment(App.Vector(-30.7, 57.1, 0), App.Vector(-29.1, 55.5, 0)),  # 9
    Part.LineSegment(App.Vector(-29.1, 55.5, 0), App.Vector(-29.1, 46.7, 0)),  # 10
    Part.LineSegment(App.Vector(-29.1, 46.7, 0), App.Vector(-30.7, 45.1, 0)),  # 11
    Part.LineSegment(App.Vector(-30.7, 45.1, 0), App.Vector(-30.7, 12, 0)),  # 12
    Part.LineSegment(App.Vector(-30.7, 12, 0), App.Vector(-29.1, 10.4, 0)),  # 13
], False)
sketch13.addConstraint([
    Sketcher.Constraint("Coincident", 0, 2, 1, 1),
    Sketcher.Constraint("Coincident", 1, 2, 2, 1),
    Sketcher.Constraint("Coincident", 2, 2, 3, 1),
    Sketcher.Constraint("Coincident", 3, 2, 4, 1),
    Sketcher.Constraint("Coincident", 4, 2, 5, 1),
    Sketcher.Constraint("Coincident", 5, 2, 6, 1),
    Sketcher.Constraint("Coincident", 6, 2, 7, 1),
    Sketcher.Constraint("Coincident", 7, 2, 8, 1),
    Sketcher.Constraint("Coincident", 8, 2, 9, 1),
    Sketcher.Constraint("Coincident", 9, 2, 10, 1),
    Sketcher.Constraint("Coincident", 10, 2, 11, 1),
    Sketcher.Constraint("Coincident", 11, 2, 12, 1),
    Sketcher.Constraint("Coincident", 12, 2, 13, 1),
    Sketcher.Constraint("Coincident", 13, 2, 0, 1),
    Sketcher.Constraint("Horizontal", 0),
    Sketcher.Constraint("Vertical", 2),
    Sketcher.Constraint("Vertical", 4),
    Sketcher.Constraint("Vertical", 6),
    Sketcher.Constraint("Horizontal", 7),
    Sketcher.Constraint("Vertical", 8),
    Sketcher.Constraint("Vertical", 10),
    Sketcher.Constraint("Vertical", 12),
    Sketcher.Constraint("Symmetric", 5, 2, 8, 2, -2),
    Sketcher.Constraint("Symmetric", 4, 2, 9, 2, -2),
    Sketcher.Constraint("Symmetric", 2, 2, 11, 2, -2),
    Sketcher.Constraint("Perpendicular", 1, 3),
    Sketcher.Constraint("Perpendicular", 3, 5),
    Sketcher.Constraint("Perpendicular", 5, 9),
    Sketcher.Constraint("Perpendicular", 9, 11),
    Sketcher.Constraint("Perpendicular", 11, 13),
    Sketcher.Constraint("Horizontal", 1, 2, 12, 2),
    Sketcher.Constraint("Vertical", 0, 2, 3, 2),
    Sketcher.Constraint("Vertical", 2, 2, 5, 2),
    Sketcher.Constraint("DistanceY", 6, 1, 6, 2, Q("12 mm")),
    Sketcher.Constraint("DistanceX", 0, 1, 0, 2, Q("58.2 mm")),
    Sketcher.Constraint("DistanceX", 7, 2, 7, 1, Q("61.4 mm")),
    Sketcher.Constraint("DistanceY", 2, 1, 2, 2, Q("33.1 mm")),
    Sketcher.Constraint("DistanceY", 4, 1, 4, 2, Q("8.8 mm")),
    Sketcher.Constraint("DistanceY", -1, 1, 1, 2, Q("12 mm")),
])
pocket9 = body.newObject("PartDesign::Pocket", "Pocket008")
pocket9.Profile = sketch13
pocket9.Type = "ThroughAll"
body2 = doc.addObject("PartDesign::Body", "Body001")
doc.recompute()

body.Placement = App.Placement(App.Vector(0, 18, 5), App.Rotation(App.Vector(0, 0, 1), 0))
boolean = body2.newObject("PartDesign::Boolean", "Boolean")
boolean.Type = "Fuse"
boolean.addObjects([body])

doc.recompute()
